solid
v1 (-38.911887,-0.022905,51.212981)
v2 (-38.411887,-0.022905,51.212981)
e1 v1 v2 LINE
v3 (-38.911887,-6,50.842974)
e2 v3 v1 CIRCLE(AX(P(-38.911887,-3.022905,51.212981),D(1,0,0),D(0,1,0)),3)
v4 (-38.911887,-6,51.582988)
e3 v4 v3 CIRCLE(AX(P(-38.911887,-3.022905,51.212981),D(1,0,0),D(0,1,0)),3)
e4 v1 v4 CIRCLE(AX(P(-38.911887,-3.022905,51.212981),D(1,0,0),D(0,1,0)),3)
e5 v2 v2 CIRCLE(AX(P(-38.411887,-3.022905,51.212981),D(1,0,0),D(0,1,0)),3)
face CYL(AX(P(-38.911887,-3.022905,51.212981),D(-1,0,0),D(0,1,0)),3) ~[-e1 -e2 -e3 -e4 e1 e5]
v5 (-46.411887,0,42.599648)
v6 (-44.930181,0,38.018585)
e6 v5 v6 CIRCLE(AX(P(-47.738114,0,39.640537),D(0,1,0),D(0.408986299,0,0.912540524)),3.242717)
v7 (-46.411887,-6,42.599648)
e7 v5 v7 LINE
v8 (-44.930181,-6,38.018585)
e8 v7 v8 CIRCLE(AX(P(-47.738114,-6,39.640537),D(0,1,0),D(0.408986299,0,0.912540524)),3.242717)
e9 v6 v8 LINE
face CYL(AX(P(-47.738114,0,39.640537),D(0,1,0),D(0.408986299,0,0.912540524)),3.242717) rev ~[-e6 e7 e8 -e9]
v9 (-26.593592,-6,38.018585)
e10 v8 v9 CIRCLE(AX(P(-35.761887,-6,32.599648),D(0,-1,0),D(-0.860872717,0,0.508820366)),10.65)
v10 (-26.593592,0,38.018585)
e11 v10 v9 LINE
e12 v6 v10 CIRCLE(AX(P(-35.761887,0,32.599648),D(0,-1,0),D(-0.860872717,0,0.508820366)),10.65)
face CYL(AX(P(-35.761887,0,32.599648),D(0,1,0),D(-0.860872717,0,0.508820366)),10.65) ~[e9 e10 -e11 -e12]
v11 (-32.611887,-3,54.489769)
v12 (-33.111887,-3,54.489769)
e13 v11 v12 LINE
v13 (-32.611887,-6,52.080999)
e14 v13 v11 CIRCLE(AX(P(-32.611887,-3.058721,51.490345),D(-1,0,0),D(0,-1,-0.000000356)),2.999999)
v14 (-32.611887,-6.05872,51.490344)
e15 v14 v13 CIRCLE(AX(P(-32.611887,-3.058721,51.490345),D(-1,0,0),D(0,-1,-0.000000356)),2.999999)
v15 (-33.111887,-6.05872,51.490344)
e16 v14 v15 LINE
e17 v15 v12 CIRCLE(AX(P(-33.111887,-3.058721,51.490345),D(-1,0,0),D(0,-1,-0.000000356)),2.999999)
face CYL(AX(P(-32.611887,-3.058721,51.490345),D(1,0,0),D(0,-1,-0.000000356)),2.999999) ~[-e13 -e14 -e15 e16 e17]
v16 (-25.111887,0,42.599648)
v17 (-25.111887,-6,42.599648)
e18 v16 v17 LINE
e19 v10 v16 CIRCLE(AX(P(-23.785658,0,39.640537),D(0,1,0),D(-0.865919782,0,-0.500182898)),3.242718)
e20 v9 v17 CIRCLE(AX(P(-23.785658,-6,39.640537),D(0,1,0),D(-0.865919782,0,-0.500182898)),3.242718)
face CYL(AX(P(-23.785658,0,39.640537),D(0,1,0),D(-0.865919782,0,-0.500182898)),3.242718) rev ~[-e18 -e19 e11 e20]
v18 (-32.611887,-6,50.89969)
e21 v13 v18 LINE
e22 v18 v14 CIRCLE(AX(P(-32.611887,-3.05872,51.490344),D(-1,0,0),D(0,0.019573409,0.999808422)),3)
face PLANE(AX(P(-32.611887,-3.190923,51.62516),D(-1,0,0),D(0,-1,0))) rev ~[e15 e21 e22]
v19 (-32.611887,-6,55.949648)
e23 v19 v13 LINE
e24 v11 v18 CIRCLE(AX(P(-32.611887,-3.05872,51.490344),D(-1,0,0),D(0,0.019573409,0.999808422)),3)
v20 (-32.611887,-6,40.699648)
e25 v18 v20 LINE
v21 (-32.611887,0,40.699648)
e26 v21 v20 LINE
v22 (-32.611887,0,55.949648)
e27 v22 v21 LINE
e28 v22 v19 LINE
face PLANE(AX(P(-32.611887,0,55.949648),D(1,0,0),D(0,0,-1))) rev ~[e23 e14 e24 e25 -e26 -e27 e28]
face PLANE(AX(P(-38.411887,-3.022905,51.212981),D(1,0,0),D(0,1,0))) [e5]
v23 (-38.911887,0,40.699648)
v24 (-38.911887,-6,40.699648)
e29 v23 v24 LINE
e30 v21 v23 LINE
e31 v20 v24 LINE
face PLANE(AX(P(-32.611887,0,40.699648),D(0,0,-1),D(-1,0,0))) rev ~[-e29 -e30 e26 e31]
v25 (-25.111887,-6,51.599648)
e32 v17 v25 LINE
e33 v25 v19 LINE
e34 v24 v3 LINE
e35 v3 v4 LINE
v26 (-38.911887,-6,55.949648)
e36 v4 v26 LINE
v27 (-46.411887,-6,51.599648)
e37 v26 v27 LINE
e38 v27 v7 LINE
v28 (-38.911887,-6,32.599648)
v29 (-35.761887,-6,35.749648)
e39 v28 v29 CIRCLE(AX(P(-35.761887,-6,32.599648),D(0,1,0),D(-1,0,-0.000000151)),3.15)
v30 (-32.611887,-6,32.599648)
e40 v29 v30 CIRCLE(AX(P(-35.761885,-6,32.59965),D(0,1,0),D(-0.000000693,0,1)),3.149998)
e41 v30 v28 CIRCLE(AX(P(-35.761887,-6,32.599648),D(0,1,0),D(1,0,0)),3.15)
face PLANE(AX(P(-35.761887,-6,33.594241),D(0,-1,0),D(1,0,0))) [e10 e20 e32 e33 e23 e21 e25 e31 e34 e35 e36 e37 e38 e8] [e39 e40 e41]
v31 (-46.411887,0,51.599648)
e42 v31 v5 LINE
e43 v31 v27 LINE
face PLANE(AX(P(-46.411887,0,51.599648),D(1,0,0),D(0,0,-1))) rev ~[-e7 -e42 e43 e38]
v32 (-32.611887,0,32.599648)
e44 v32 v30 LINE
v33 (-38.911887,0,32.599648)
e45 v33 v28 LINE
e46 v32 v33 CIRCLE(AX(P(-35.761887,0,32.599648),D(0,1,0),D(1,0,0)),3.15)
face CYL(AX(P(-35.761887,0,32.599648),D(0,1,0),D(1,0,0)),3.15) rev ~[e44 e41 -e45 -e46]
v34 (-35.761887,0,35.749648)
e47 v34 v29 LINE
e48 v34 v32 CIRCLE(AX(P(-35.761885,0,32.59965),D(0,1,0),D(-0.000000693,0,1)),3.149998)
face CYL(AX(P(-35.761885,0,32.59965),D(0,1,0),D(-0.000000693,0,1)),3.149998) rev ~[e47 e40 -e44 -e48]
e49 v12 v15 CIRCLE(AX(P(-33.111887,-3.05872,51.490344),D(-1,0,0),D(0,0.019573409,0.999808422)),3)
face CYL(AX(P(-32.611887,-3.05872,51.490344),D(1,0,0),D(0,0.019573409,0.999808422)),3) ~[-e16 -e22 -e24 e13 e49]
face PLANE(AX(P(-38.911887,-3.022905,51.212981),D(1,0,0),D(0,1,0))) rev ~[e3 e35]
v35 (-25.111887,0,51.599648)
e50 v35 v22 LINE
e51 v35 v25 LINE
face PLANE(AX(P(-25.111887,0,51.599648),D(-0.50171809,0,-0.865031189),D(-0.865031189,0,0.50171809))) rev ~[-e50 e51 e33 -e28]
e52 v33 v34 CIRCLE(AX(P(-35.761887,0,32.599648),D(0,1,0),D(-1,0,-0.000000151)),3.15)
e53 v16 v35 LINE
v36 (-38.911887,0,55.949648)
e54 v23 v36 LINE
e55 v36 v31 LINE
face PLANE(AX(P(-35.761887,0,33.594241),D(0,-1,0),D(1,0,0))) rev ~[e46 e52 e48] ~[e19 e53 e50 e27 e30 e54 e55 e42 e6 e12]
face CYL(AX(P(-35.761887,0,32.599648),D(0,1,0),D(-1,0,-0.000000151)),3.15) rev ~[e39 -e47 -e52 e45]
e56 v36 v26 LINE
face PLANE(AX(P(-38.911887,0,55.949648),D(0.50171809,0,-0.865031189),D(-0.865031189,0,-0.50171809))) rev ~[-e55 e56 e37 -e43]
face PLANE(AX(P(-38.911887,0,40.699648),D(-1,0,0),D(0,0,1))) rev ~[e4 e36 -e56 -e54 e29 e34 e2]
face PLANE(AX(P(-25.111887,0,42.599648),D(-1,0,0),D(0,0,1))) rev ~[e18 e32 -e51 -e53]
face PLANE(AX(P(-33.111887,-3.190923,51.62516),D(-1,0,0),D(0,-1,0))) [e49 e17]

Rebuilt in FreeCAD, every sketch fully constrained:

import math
import FreeCAD as App
import Part
import Sketcher
Q = App.Units.Quantity

doc = App.newDocument("Part")
body = doc.addObject("PartDesign::Body", "Body")

sketch1 = body.newObject("Sketcher::SketchObject", "Sketch")
sketch1.AttachmentSupport = (doc.getObject("XZ_Plane"), [""])
sketch1.MapMode = "FlatFace"
sketch1.addGeometry([
    Part.LineSegment(App.Vector(-38.911887, 40.699648, 0), App.Vector(-38.911887, 55.949648, 0)),
    Part.LineSegment(App.Vector(-38.911887, 55.949648, 0), App.Vector(-46.411887, 51.599648, 0)),
    Part.LineSegment(App.Vector(-46.411887, 51.599648, 0), App.Vector(-46.411887, 42.599648, 0)),
    Part.ArcOfCircle(Part.Circle(App.Vector(-47.738114, 39.640537, 0), App.Vector(0, 0, 1), 3.242717), math.radians(-30.012106), math.radians(65.858828)),
    Part.ArcOfCircle(Part.Circle(App.Vector(-35.761887, 32.599648, 0), App.Vector(0, 0, 1), 10.65), math.radians(149.414713), math.radians(390.585287)),
    Part.ArcOfCircle(Part.Circle(App.Vector(-23.785658, 39.640537, 0), App.Vector(0, 0, 1), 3.242718), math.radians(114.141199), math.radians(210.012101)),
    Part.LineSegment(App.Vector(-25.111887, 42.599648, 0), App.Vector(-25.111887, 51.599648, 0)),
    Part.LineSegment(App.Vector(-25.111887, 51.599648, 0), App.Vector(-32.611887, 55.949648, 0)),
    Part.LineSegment(App.Vector(-32.611887, 55.949648, 0), App.Vector(-32.611887, 40.699648, 0)),
    Part.LineSegment(App.Vector(-32.611887, 40.699648, 0), App.Vector(-38.911887, 40.699648, 0)),
    Part.ArcOfCircle(Part.Circle(App.Vector(-35.761887, 32.599648, 0), App.Vector(0, 0, 1), 3.15), math.radians(89.999991), math.radians(180.000009)),
    Part.ArcOfCircle(Part.Circle(App.Vector(-35.761885, 32.59965, 0), App.Vector(0, 0, 1), 3.149998), math.radians(-0.00004), math.radians(90.00004)),
    Part.ArcOfCircle(Part.Circle(App.Vector(-35.761887, 32.599648, 0), App.Vector(0, 0, 1), 3.15), math.radians(180), math.radians(360)),
], False)
sketch1.addConstraint([
    Sketcher.Constraint("Coincident", 0, 2, 1, 1),
    Sketcher.Constraint("Coincident", 1, 2, 2, 1),
    Sketcher.Constraint("Coincident", 2, 2, 3, 2),
    Sketcher.Constraint("Coincident", 3, 1, 4, 1),
    Sketcher.Constraint("Coincident", 4, 2, 5, 2),
    Sketcher.Constraint("Coincident", 5, 1, 6, 1),
    Sketcher.Constraint("Coincident", 6, 2, 7, 1),
    Sketcher.Constraint("Coincident", 7, 2, 8, 1),
    Sketcher.Constraint("Coincident", 8, 2, 9, 1),
    Sketcher.Constraint("Coincident", 9, 2, 0, 1),
    Sketcher.Constraint("Tangent", 10, 1, 11, 2),
    Sketcher.Constraint("Tangent", 11, 1, 12, 2),
    Sketcher.Constraint("Tangent", 12, 1, 10, 2),
    Sketcher.Constraint("Vertical", 0),
    Sketcher.Constraint("Vertical", 2),
    Sketcher.Constraint("Vertical", 6),
    Sketcher.Constraint("Vertical", 8),
    Sketcher.Constraint("Horizontal", 9),
    Sketcher.Constraint("Coincident", 10, 3, 4, 3),
    Sketcher.Constraint("Equal", 3, 5),
    Sketcher.Constraint("Horizontal", 3, 3, 5, 3),
    Sketcher.Constraint("Horizontal", 3, 1, 4, 2),
    Sketcher.Constraint("Horizontal", 2, 2, 5, 1),
    Sketcher.Constraint("Horizontal", 1, 2, 6, 2),
    Sketcher.Constraint("Horizontal", 0, 2, 7, 2),
    Sketcher.Constraint("Horizontal", 12, 3, 11, 1),
    Sketcher.Constraint("Horizontal", 11, 1, 12, 1),
    Sketcher.Constraint("Vertical", 12, 3, 10, 1),
    Sketcher.Constraint("Vertical", 8, 2, 11, 1),
    Sketcher.Constraint("Vertical", 9, 2, 12, 1),
    Sketcher.Constraint("DistanceY", 2, 2, 2, 1, Q("9 mm")),
    Sketcher.Constraint("Radius", 4, Q("10.65 mm")),
    Sketcher.Constraint("Radius", 10, Q("3.15 mm")),
    Sketcher.Constraint("DistanceY", 10, 3, 1, 2, Q("19 mm")),
    Sketcher.Constraint("DistanceY", 0, 1, 0, 2, Q("15.25 mm")),
    Sketcher.Constraint("DistanceX", 1, 2, 0, 2, Q("7.5 mm")),
    Sketcher.Constraint("DistanceY", 8, 2, 5, 1, Q("1.9 mm")),
    Sketcher.Constraint("Radius", 3, Q("3.242717 mm")),
    Sketcher.Constraint("DistanceY", -1, 1, 4, 3, Q("32.599648 mm")),
    Sketcher.Constraint("DistanceX", 5, 3, -1, 1, Q("23.785658 mm")),
    Sketcher.Constraint("DistanceX", 3, 1, -1, 1, Q("44.930181 mm")),
])
pad1 = body.newObject("PartDesign::Pad", "Pad")
pad1.Profile = sketch1
pad1.Length = 6

sketch2 = body.newObject("Sketcher::SketchObject", "Sketch001")
sketch2.AttachmentSupport = (doc.getObject("YZ_Plane"), [""])
sketch2.MapMode = "FlatFace"
sketch2.AttachmentOffset = App.Placement(App.Vector(0, 0, -32.611887), App.Rotation())
sketch2.addGeometry([
    Part.ArcOfCircle(Part.Circle(App.Vector(-3.05872, 51.490344, 0), App.Vector(0, 0, 1), 3), math.radians(179.999999), math.radians(448.878455)),
    Part.ArcOfCircle(Part.Circle(App.Vector(-3.058721, 51.490345, 0), App.Vector(0, 0, 1), 2.999999), math.radians(88.878433), math.radians(180.00002)),
], False)
sketch2.addConstraint([
    Sketcher.Constraint("Tangent", 0, 1, 1, 2),
    Sketcher.Constraint("Coincident", 1, 1, 0, 2),
    Sketcher.Constraint("Horizontal", 1, 3, 0, 1),
    Sketcher.Constraint("Radius", 0, Q("3 mm")),
    Sketcher.Constraint("DistanceX", 1, 1, -1, 1, Q("3 mm")),
    Sketcher.Constraint("DistanceX", 0, 3, -1, 1, Q("3.05872 mm")),
    Sketcher.Constraint("DistanceY", -1, 1, 1, 1, Q("54.489769 mm")),
])
pad2 = body.newObject("PartDesign::Pad", "Pad001")
pad2.Profile = sketch2
pad2.Length = 0.5
pad2.Reversed = True

sketch3 = body.newObject("Sketcher::SketchObject", "Sketch002")
sketch3.AttachmentSupport = (doc.getObject("YZ_Plane"), [""])
sketch3.MapMode = "FlatFace"
sketch3.AttachmentOffset = App.Placement(App.Vector(0, 0, -38.911887), App.Rotation())
sketch3.addGeometry(Part.Circle(App.Vector(-3.022905, 51.212981, 0), App.Vector(0, 0, 1), 3), False)
sketch3.addConstraint([
    Sketcher.Constraint("Diameter", 0, Q("6 mm")),
    Sketcher.Constraint("DistanceY", -1, 1, 0, 3, Q("51.212981 mm")),
    Sketcher.Constraint("DistanceX", 0, 3, -1, 1, Q("3.022905 mm")),
])
pad3 = body.newObject("PartDesign::Pad", "Pad002")
pad3.Profile = sketch3
pad3.Length = 0.5

sketch4 = body.newObject("Sketcher::SketchObject", "Sketch003")
sketch4.AttachmentSupport = (doc.getObject("XZ_Plane"), [""])
sketch4.MapMode = "FlatFace"
sketch4.addGeometry([
    Part.LineSegment(App.Vector(-38.911887, 40.699648, 0), App.Vector(-38.911887, 55.949648, 0)),
    Part.LineSegment(App.Vector(-38.911887, 55.949648, 0), App.Vector(-46.411887, 51.599648, 0)),
    Part.LineSegment(App.Vector(-46.411887, 51.599648, 0), App.Vector(-46.411887, 42.599648, 0)),
    Part.ArcOfCircle(Part.Circle(App.Vector(-47.738114, 39.640537, 0), App.Vector(0, 0, 1), 3.242717), math.radians(-30.012106), math.radians(65.858828)),
    Part.ArcOfCircle(Part.Circle(App.Vector(-35.761887, 32.599648, 0), App.Vector(0, 0, 1), 10.65), math.radians(149.414713), math.radians(390.585287)),
    Part.ArcOfCircle(Part.Circle(App.Vector(-23.785658, 39.640537, 0), App.Vector(0, 0, 1), 3.242718), math.radians(114.141199), math.radians(210.012101)),
    Part.LineSegment(App.Vector(-25.111887, 42.599648, 0), App.Vector(-25.111887, 51.599648, 0)),
    Part.LineSegment(App.Vector(-25.111887, 51.599648, 0), App.Vector(-32.611887, 55.949648, 0)),
    Part.LineSegment(App.Vector(-32.611887, 55.949648, 0), App.Vector(-32.611887, 40.699648, 0)),
    Part.LineSegment(App.Vector(-32.611887, 40.699648, 0), App.Vector(-38.911887, 40.699648, 0)),
    Part.ArcOfCircle(Part.Circle(App.Vector(-35.761887, 32.599648, 0), App.Vector(0, 0, 1), 3.15), math.radians(89.999991), math.radians(180.000009)),
    Part.ArcOfCircle(Part.Circle(App.Vector(-35.761885, 32.59965, 0), App.Vector(0, 0, 1), 3.149998), math.radians(-0.00004), math.radians(90.00004)),
    Part.ArcOfCircle(Part.Circle(App.Vector(-35.761887, 32.599648, 0), App.Vector(0, 0, 1), 3.15), math.radians(180), math.radians(360)),
], False)
sketch4.addConstraint([
    Sketcher.Constraint("Coincident", 0, 2, 1, 1),
    Sketcher.Constraint("Coincident", 1, 2, 2, 1),
    Sketcher.Constraint("Coincident", 2, 2, 3, 2),
    Sketcher.Constraint("Coincident", 3, 1, 4, 1),
    Sketcher.Constraint("Coincident", 4, 2, 5, 2),
    Sketcher.Constraint("Coincident", 5, 1, 6, 1),
    Sketcher.Constraint("Coincident", 6, 2, 7, 1),
    Sketcher.Constraint("Coincident", 7, 2, 8, 1),
    Sketcher.Constraint("Coincident", 8, 2, 9, 1),
    Sketcher.Constraint("Coincident", 9, 2, 0, 1),
    Sketcher.Constraint("Tangent", 10, 1, 11, 2),
    Sketcher.Constraint("Tangent", 11, 1, 12, 2),
    Sketcher.Constraint("Tangent", 12, 1, 10, 2),
    Sketcher.Constraint("Vertical", 0),
    Sketcher.Constraint("Vertical", 2),
    Sketcher.Constraint("Vertical", 6),
    Sketcher.Constraint("Vertical", 8),
    Sketcher.Constraint("Horizontal", 9),
    Sketcher.Constraint("Coincident", 10, 3, 4, 3),
    Sketcher.Constraint("Equal", 3, 5),
    Sketcher.Constraint("Horizontal", 3, 3, 5, 3),
    Sketcher.Constraint("Horizontal", 3, 1, 4, 2),
    Sketcher.Constraint("Horizontal", 2, 2, 5, 1),
    Sketcher.Constraint("Horizontal", 1, 2, 6, 2),
    Sketcher.Constraint("Horizontal", 0, 2, 7, 2),
    Sketcher.Constraint("Horizontal", 12, 3, 11, 1),
    Sketcher.Constraint("Horizontal", 11, 1, 12, 1),
    Sketcher.Constraint("Vertical", 12, 3, 10, 1),
    Sketcher.Constraint("Vertical", 8, 2, 11, 1),
    Sketcher.Constraint("Vertical", 9, 2, 12, 1),
    Sketcher.Constraint("DistanceY", 2, 2, 2, 1, Q("9 mm")),
    Sketcher.Constraint("Radius", 4, Q("10.65 mm")),
    Sketcher.Constraint("Radius", 10, Q("3.15 mm")),
    Sketcher.Constraint("DistanceY", 10, 3, 1, 2, Q("19 mm")),
    Sketcher.Constraint("DistanceY", 0, 1, 0, 2, Q("15.25 mm")),
    Sketcher.Constraint("DistanceX", 1, 2, 0, 2, Q("7.5 mm")),
    Sketcher.Constraint("DistanceY", 8, 2, 5, 1, Q("1.9 mm")),
    Sketcher.Constraint("Radius", 3, Q("3.242717 mm")),
    Sketcher.Constraint("DistanceY", -1, 1, 4, 3, Q("32.599648 mm")),
    Sketcher.Constraint("DistanceX", 5, 3, -1, 1, Q("23.785658 mm")),
    Sketcher.Constraint("DistanceX", 3, 1, -1, 1, Q("44.930181 mm")),
])
pad4 = body.newObject("PartDesign::Pad", "Pad003")
pad4.Profile = sketch4
pad4.Length = 6

doc.recompute()
